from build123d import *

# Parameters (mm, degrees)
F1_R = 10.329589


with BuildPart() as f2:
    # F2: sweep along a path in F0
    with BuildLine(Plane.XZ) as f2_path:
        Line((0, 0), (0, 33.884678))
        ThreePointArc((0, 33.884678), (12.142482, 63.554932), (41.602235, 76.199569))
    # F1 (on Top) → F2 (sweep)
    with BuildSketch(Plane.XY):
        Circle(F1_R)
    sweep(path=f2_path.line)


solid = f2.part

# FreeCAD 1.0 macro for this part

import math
import FreeCAD as App
import Part
import Sketcher

V = App.Vector

doc = App.newDocument("Part")
body = doc.addObject("PartDesign::Body", "Body")

sketch1 = body.newObject("Sketcher::SketchObject", "Sketch")
sketch1.AttachmentSupport = (doc.getObject("XY_Plane"), [""])
sketch1.MapMode = "FlatFace"
sketch1.addGeometry(Part.Circle(V(0, 0, 0), V(0, 0, 1), 10), False)
sketch1.addConstraint([
    Sketcher.Constraint("Coincident", 0, 3, -1, 1),
    Sketcher.Constraint("Diameter", 0, 20.659178),
])

sketch2 = body.newObject("Sketcher::SketchObject", "Sketch001")
sketch2.AttachmentSupport = (doc.getObject("XZ_Plane"), [""])
sketch2.MapMode = "FlatFace"
sketch2.addGeometry([
    Part.LineSegment(V(0, 0, 0), V(0, 34, 0)),
    Part.ArcOfCircle(Part.Circle(V(42, 34, 0), V(0, 0, 1), 42), math.radians(91), math.radians(180)),
], False)
sketch2.addConstraint([
    Sketcher.Constraint("Tangent", 0, 2, 1, 2),
    Sketcher.Constraint("Vertical", 0),
    Sketcher.Constraint("Coincident", 0, 1, -1, 1),
    Sketcher.Constraint("Radius", 1, 42.320995),
    Sketcher.Constraint("DistanceY", 0, 1, 0, 2, 33.884678),
    Sketcher.Constraint("DistanceY", -1, 1, 1, 1, 76.199569),
])
doc.recompute()

additivepipe = body.newObject("PartDesign::AdditivePipe", "AdditivePipe")
additivepipe.Profile = sketch1
additivepipe.Spine = (sketch2, ["Edge1", "Edge2"])

doc.recompute()
